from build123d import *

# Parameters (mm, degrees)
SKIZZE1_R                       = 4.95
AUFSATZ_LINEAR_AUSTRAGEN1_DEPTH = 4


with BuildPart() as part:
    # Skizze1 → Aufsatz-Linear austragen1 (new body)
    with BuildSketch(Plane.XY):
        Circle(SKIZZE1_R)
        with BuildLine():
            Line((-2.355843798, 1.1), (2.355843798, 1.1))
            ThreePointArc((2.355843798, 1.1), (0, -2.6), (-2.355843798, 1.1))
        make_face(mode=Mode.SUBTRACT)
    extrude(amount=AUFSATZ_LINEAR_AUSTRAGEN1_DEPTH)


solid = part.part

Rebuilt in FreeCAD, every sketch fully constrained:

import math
import FreeCAD as App
import Part
import Sketcher

V = App.Vector

doc = App.newDocument("Part")
body = doc.addObject("PartDesign::Body", "Body")

# Sketch on XY plane
sketch1 = body.newObject("Sketcher::SketchObject", "Sketch")
sketch1.AttachmentSupport = (doc.getObject("XY_Plane"), [""])
sketch1.MapMode = "FlatFace"
sketch1.addGeometry([
    Part.Circle(V(0, 0, 0), V(0, 0, 1), 5),
    Part.ArcOfCircle(Part.Circle(V(0, 0, 0), V(0, 0, 1), 2.6), math.radians(155), math.radians(385)),
    Part.LineSegment(V(-2.4, 1.1, 0), V(2.4, 1.1, 0)),
], False)
sketch1.addConstraint([
    Sketcher.Constraint("Coincident", 1, 1, 2, 1),
    Sketcher.Constraint("Coincident", 2, 2, 1, 2),
    Sketcher.Constraint("Horizontal", 2),
    Sketcher.Constraint("Coincident", 0, 3, -1, 1),
    Sketcher.Constraint("Coincident", 1, 3, -1, 1),
    Sketcher.Constraint("Diameter", 0, 9.9),
    Sketcher.Constraint("Radius", 1, 2.6),
    Sketcher.Constraint("DistanceY", -1, 1, 1, 1, 1.1),
])
pad1 = body.newObject("PartDesign::Pad", "Pad")
pad1.Profile = sketch1
pad1.Length = 4

doc.recompute()
